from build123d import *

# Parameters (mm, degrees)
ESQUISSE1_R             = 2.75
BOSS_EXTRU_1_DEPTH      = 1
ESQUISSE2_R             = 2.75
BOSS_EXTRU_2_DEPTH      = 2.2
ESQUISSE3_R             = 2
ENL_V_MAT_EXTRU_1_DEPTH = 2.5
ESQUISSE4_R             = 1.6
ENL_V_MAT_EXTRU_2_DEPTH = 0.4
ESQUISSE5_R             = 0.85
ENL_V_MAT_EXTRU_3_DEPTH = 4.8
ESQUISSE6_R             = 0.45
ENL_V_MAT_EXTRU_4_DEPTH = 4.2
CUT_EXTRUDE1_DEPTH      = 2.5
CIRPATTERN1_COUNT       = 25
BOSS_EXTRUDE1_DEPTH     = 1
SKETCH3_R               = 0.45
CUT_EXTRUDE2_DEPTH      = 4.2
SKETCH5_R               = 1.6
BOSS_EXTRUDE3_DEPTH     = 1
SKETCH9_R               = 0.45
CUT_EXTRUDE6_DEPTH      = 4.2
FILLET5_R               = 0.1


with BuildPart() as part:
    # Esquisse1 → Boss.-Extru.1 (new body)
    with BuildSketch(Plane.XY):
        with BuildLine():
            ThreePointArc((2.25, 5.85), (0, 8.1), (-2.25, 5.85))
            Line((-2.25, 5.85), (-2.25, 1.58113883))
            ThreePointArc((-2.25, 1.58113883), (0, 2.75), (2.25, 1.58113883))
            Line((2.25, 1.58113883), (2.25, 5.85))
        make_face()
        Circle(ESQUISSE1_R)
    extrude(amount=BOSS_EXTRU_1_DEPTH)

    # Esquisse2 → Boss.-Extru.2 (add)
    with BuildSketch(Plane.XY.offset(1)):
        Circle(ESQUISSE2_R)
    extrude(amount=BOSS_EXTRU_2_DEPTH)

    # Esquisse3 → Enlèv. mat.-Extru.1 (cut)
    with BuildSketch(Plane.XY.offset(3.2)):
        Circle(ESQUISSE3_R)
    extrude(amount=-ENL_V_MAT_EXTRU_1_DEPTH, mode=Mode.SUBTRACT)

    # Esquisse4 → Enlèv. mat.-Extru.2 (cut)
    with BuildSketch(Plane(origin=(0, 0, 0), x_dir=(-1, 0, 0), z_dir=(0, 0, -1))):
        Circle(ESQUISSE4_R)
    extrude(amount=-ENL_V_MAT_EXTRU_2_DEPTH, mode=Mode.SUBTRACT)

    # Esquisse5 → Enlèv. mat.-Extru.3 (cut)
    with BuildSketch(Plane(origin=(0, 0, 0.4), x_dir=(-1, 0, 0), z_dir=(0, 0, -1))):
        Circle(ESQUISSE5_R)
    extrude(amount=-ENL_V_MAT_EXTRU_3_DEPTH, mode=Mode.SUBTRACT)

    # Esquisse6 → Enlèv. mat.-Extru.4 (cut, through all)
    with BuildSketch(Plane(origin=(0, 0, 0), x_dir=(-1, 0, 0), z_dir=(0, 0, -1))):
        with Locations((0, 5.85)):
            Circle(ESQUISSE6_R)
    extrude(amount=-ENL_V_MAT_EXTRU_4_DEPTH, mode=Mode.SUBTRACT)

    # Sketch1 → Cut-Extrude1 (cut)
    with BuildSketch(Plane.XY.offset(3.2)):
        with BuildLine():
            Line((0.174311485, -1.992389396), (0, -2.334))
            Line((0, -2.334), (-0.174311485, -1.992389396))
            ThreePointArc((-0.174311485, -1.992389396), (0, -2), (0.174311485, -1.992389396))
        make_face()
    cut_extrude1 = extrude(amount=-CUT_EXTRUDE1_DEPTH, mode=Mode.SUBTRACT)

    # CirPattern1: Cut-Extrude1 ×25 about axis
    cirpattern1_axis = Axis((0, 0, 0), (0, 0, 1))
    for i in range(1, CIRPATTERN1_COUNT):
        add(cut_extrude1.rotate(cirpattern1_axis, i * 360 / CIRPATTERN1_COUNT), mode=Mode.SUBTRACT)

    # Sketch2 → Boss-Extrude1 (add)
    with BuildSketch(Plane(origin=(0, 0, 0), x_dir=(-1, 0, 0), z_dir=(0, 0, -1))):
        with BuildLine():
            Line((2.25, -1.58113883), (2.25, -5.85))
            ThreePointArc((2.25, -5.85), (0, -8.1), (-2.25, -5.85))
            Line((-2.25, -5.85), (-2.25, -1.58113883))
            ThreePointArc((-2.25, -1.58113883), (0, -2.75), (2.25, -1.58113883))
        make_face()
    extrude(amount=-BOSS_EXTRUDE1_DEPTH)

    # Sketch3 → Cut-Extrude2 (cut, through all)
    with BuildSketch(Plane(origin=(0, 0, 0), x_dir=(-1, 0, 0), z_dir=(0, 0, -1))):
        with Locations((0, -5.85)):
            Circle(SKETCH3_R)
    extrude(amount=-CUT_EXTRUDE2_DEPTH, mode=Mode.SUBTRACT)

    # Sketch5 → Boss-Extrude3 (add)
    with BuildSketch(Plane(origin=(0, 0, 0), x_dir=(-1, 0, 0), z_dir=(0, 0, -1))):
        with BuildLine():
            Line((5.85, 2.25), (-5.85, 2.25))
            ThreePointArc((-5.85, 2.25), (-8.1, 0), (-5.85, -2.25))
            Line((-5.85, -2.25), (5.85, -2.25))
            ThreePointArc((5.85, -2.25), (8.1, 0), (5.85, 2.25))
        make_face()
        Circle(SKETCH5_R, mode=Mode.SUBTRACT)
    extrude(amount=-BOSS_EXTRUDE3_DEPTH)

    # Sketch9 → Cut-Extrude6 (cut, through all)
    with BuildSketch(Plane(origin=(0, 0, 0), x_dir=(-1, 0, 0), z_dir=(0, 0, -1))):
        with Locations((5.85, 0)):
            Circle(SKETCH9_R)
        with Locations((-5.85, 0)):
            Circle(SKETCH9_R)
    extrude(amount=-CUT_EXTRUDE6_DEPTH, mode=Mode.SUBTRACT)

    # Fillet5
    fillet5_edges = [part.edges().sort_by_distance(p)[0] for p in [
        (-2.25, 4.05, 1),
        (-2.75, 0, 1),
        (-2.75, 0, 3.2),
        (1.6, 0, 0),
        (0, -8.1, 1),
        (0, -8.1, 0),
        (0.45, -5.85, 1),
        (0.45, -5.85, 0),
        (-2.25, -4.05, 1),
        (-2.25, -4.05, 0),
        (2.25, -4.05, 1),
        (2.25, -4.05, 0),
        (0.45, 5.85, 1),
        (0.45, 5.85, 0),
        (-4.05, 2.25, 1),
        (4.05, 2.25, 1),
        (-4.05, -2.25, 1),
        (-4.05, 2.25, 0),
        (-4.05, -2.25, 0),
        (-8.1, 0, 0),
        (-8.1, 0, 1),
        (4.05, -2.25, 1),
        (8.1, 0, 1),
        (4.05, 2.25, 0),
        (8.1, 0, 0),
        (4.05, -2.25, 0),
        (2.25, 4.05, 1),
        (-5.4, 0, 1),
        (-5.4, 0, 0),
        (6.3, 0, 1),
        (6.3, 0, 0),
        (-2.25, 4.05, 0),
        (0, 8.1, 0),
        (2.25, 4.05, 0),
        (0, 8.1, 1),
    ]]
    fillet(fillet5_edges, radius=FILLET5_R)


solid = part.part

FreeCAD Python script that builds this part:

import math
import FreeCAD as App
import Part
import Sketcher


def edges_at(feature, points):
    """Names of the edges that pass closest to the given points."""
    edges = feature.Shape.Edges
    near = lambda p: min(range(len(edges)), key=lambda i: edges[i].distToShape(Part.Vertex(*p))[0])
    return sorted({f"Edge{near(p) + 1}" for p in points})

doc = App.newDocument("Part")
body = doc.addObject("PartDesign::Body", "Body")

# Sketch on XY plane
sketch1 = doc.addObject("Sketcher::SketchObject", "Sketch")
body.addObject(sketch1)
sketch1.AttachmentSupport = (doc.XY_Plane, [""])
sketch1.MapMode = "FlatFace"
sketch1.addGeometry([
    Part.ArcOfCircle(Part.Circle(App.Vector(0, 5.8, 0), App.Vector(0, 0, 1), 2.2), math.radians(0), math.radians(180)),
    Part.LineSegment(App.Vector(-2.2, 5.8, 0), App.Vector(-2.2, 1.6, 0)),
    Part.ArcOfCircle(Part.Circle(App.Vector(0, 0, 0), App.Vector(0, 0, 1), 2.8), math.radians(145), math.radians(395)),
    Part.LineSegment(App.Vector(2.2, 1.6, 0), App.Vector(2.2, 5.8, 0)),
], False)
sketch1.addConstraint([
    Sketcher.Constraint("Tangent", 0, 2, 1, 1),
    Sketcher.Constraint("Coincident", 1, 2, 2, 1),
    Sketcher.Constraint("Coincident", 2, 2, 3, 1),
    Sketcher.Constraint("Tangent", 3, 2, 0, 1),
    Sketcher.Constraint("Vertical", 1),
    Sketcher.Constraint("Vertical", 3),
    Sketcher.Constraint("Coincident", 2, 3, -1, 1),
    Sketcher.Constraint("PointOnObject", 0, 3, -2),
    Sketcher.Constraint("Radius", 0, 2.25),
    Sketcher.Constraint("Radius", 2, 2.75),
    Sketcher.Constraint("DistanceY", -1, 1, 0, 3, 5.85),
])
pad1 = doc.addObject("PartDesign::Pad", "Pad")
body.addObject(pad1)
pad1.Profile = sketch1
pad1.Length = 1

# Sketch on XY plane
sketch2 = doc.addObject("Sketcher::SketchObject", "Sketch001")
body.addObject(sketch2)
sketch2.AttachmentSupport = (doc.XY_Plane, [""])
sketch2.MapMode = "FlatFace"
sketch2.AttachmentOffset = App.Placement(App.Vector(0, 0, 1), App.Rotation())
sketch2.addGeometry(Part.Circle(App.Vector(0, 0, 0), App.Vector(0, 0, 1), 2.8), False)
sketch2.addConstraint([
    Sketcher.Constraint("Coincident", 0, 3, -1, 1),
    Sketcher.Constraint("Diameter", 0, 5.5),
])
pad2 = doc.addObject("PartDesign::Pad", "Pad001")
body.addObject(pad2)
pad2.Profile = sketch2
pad2.Length = 2.2

# Sketch on XY plane
sketch3 = doc.addObject("Sketcher::SketchObject", "Sketch002")
body.addObject(sketch3)
sketch3.AttachmentSupport = (doc.XY_Plane, [""])
sketch3.MapMode = "FlatFace"
sketch3.AttachmentOffset = App.Placement(App.Vector(0, 0, 3.2), App.Rotation())
sketch3.addGeometry(Part.Circle(App.Vector(0, 0, 0), App.Vector(0, 0, 1), 2), False)
sketch3.addConstraint([
    Sketcher.Constraint("Coincident", 0, 3, -1, 1),
    Sketcher.Constraint("Diameter", 0, 4.0),
])
pocket1 = doc.addObject("PartDesign::Pocket", "Pocket")
body.addObject(pocket1)
pocket1.Profile = sketch3
pocket1.Length = 2.5

# Sketch on XY plane
sketch4 = doc.addObject("Sketcher::SketchObject", "Sketch003")
body.addObject(sketch4)
sketch4.AttachmentSupport = (doc.XY_Plane, [""])
sketch4.MapMode = "FlatFace"
sketch4.addGeometry(Part.Circle(App.Vector(0, 0, 0), App.Vector(0, 0, 1), 1.6), False)
sketch4.addConstraint([
    Sketcher.Constraint("Coincident", 0, 3, -1, 1),
    Sketcher.Constraint("Diameter", 0, 3.2),
])
pocket2 = doc.addObject("PartDesign::Pocket", "Pocket001")
body.addObject(pocket2)
pocket2.Profile = sketch4
pocket2.Length = 0.4
pocket2.Reversed = True

# Sketch on XY plane
sketch5 = doc.addObject("Sketcher::SketchObject", "Sketch004")
body.addObject(sketch5)
sketch5.AttachmentSupport = (doc.XY_Plane, [""])
sketch5.MapMode = "FlatFace"
sketch5.AttachmentOffset = App.Placement(App.Vector(0, 0, 0.4), App.Rotation())
sketch5.addGeometry(Part.Circle(App.Vector(0, 0, 0), App.Vector(0, 0, 1), 0.8), False)
sketch5.addConstraint([
    Sketcher.Constraint("Coincident", 0, 3, -1, 1),
    Sketcher.Constraint("Diameter", 0, 1.7),
])
pocket3 = doc.addObject("PartDesign::Pocket", "Pocket002")
body.addObject(pocket3)
pocket3.Profile = sketch5
pocket3.Length = 4.8
pocket3.Reversed = True

# Sketch on XY plane
sketch6 = doc.addObject("Sketcher::SketchObject", "Sketch005")
body.addObject(sketch6)
sketch6.AttachmentSupport = (doc.XY_Plane, [""])
sketch6.MapMode = "FlatFace"
sketch6.addGeometry(Part.Circle(App.Vector(0, 5.85, 0), App.Vector(0, 0, 1), 0.45), False)
sketch6.addConstraint([
    Sketcher.Constraint("PointOnObject", 0, 3, -2),
    Sketcher.Constraint("Diameter", 0, 0.9),
    Sketcher.Constraint("DistanceY", -1, 1, 0, 3, 5.85),
])
pocket4 = doc.addObject("PartDesign::Pocket", "Pocket003")
body.addObject(pocket4)
pocket4.Profile = sketch6
pocket4.Type = "ThroughAll"
pocket4.Reversed = True

# Sketch on XY plane
sketch7 = doc.addObject("Sketcher::SketchObject", "Sketch006")
body.addObject(sketch7)
sketch7.AttachmentSupport = (doc.XY_Plane, [""])
sketch7.MapMode = "FlatFace"
sketch7.AttachmentOffset = App.Placement(App.Vector(0, 0, 3.2), App.Rotation())
sketch7.addGeometry([
    Part.LineSegment(App.Vector(0, -2.33, 0), App.Vector(0.17, -1.99, 0)),
    Part.ArcOfCircle(Part.Circle(App.Vector(0, 0, 0), App.Vector(0, 0, 1), 2), math.radians(-95), math.radians(-85)),
    Part.LineSegment(App.Vector(-0.17, -1.99, 0), App.Vector(0, -2.33, 0)),
], False)
sketch7.addConstraint([
    Sketcher.Constraint("Coincident", 0, 2, 1, 2),
    Sketcher.Constraint("Coincident", 1, 1, 2, 1),
    Sketcher.Constraint("Coincident", 2, 2, 0, 1),
    Sketcher.Constraint("Coincident", 1, 3, -1, 1),
    Sketcher.Constraint("PointOnObject", 2, 2, -2),
    Sketcher.Constraint("Horizontal", 0, 2, 1, 1),
    Sketcher.Constraint("Radius", 1, 2.0),
    Sketcher.Constraint("DistanceY", 2, 2, -1, 1, 2.334),
    Sketcher.Constraint("DistanceX", -1, 1, 0, 2, 0.174311),
])
pocket5 = doc.addObject("PartDesign::Pocket", "Pocket004")
body.addObject(pocket5)
pocket5.Profile = sketch7
pocket5.Length = 2.5
doc.recompute()

polarpattern = doc.addObject("PartDesign::PolarPattern", "PolarPattern")
body.addObject(polarpattern)
polarpattern.Originals = [pocket5]
polarpattern.Axis = (doc.Z_Axis, [""])
polarpattern.Angle = 360
polarpattern.Occurrences = 25
body.Tip = polarpattern

# Sketch on XY plane
sketch8 = doc.addObject("Sketcher::SketchObject", "Sketch007")
body.addObject(sketch8)
sketch8.AttachmentSupport = (doc.XY_Plane, [""])
sketch8.MapMode = "FlatFace"
sketch8.addGeometry([
    Part.LineSegment(App.Vector(-2.2, -5.8, 0), App.Vector(-2.2, -1.6, 0)),
    Part.ArcOfCircle(Part.Circle(App.Vector(0, 0, 0), App.Vector(0, 0, 1), 2.8), math.radians(-145), math.radians(-35)),
    Part.LineSegment(App.Vector(2.2, -1.6, 0), App.Vector(2.2, -5.8, 0)),
    Part.ArcOfCircle(Part.Circle(App.Vector(0, -5.8, 0), App.Vector(0, 0, 1), 2.2), math.radians(180), math.radians(360)),
], False)
sketch8.addConstraint([
    Sketcher.Constraint("Coincident", 0, 2, 1, 1),
    Sketcher.Constraint("Coincident", 1, 2, 2, 1),
    Sketcher.Constraint("Tangent", 2, 2, 3, 2),
    Sketcher.Constraint("Tangent", 3, 1, 0, 1),
    Sketcher.Constraint("Vertical", 0),
    Sketcher.Constraint("Vertical", 2),
    Sketcher.Constraint("Coincident", 1, 3, -1, 1),
    Sketcher.Constraint("PointOnObject", 3, 3, -2),
    Sketcher.Constraint("Radius", 1, 2.75),
    Sketcher.Constraint("Radius", 3, 2.25),
    Sketcher.Constraint("DistanceY", 3, 3, -1, 1, 5.85),
])
pad3 = doc.addObject("PartDesign::Pad", "Pad002")
body.addObject(pad3)
pad3.Profile = sketch8
pad3.Length = 1

# Sketch on XY plane
sketch9 = doc.addObject("Sketcher::SketchObject", "Sketch008")
body.addObject(sketch9)
sketch9.AttachmentSupport = (doc.XY_Plane, [""])
sketch9.MapMode = "FlatFace"
sketch9.addGeometry(Part.Circle(App.Vector(0, -5.85, 0), App.Vector(0, 0, 1), 0.45), False)
sketch9.addConstraint([
    Sketcher.Constraint("PointOnObject", 0, 3, -2),
    Sketcher.Constraint("Diameter", 0, 0.9),
    Sketcher.Constraint("DistanceY", 0, 3, -1, 1, 5.85),
])
pocket6 = doc.addObject("PartDesign::Pocket", "Pocket005")
body.addObject(pocket6)
pocket6.Profile = sketch9
pocket6.Type = "ThroughAll"
pocket6.Reversed = True

# Sketch on XY plane
sketch10 = doc.addObject("Sketcher::SketchObject", "Sketch009")
body.addObject(sketch10)
sketch10.AttachmentSupport = (doc.XY_Plane, [""])
sketch10.MapMode = "FlatFace"
sketch10.addGeometry([
    Part.LineSegment(App.Vector(-5.8, 2.2, 0), App.Vector(5.8, 2.2, 0)),  # 0
    Part.ArcOfCircle(Part.Circle(App.Vector(5.8, 0, 0), App.Vector(0, 0, 1), 2.2), math.radians(-90), math.radians(90)),  # 1
    Part.LineSegment(App.Vector(5.8, -2.2, 0), App.Vector(-5.8, -2.2, 0)),  # 2
    Part.ArcOfCircle(Part.Circle(App.Vector(-5.8, 0, 0), App.Vector(0, 0, 1), 2.2), math.radians(90), math.radians(270)),  # 3
    Part.Circle(App.Vector(0, 0, 0), App.Vector(0, 0, 1), 1.6),  # 4
], False)
sketch10.addConstraint([
    Sketcher.Constraint("Tangent", 0, 2, 1, 2),
    Sketcher.Constraint("Tangent", 1, 1, 2, 1),
    Sketcher.Constraint("Tangent", 2, 2, 3, 2),
    Sketcher.Constraint("Tangent", 3, 1, 0, 1),
    Sketcher.Constraint("Horizontal", 0),
    Sketcher.Constraint("Horizontal", 2),
    Sketcher.Constraint("Coincident", 4, 3, -1, 1),
    Sketcher.Constraint("Symmetric", 1, 3, 3, 3, -1, 1),
    Sketcher.Constraint("Diameter", 4, 3.2),
    Sketcher.Constraint("Radius", 1, 2.25),
    Sketcher.Constraint("DistanceX", 0, 1, 0, 2, 11.7),
])
pad4 = doc.addObject("PartDesign::Pad", "Pad003")
body.addObject(pad4)
pad4.Profile = sketch10
pad4.Length = 1

# Sketch on XY plane
sketch11 = doc.addObject("Sketcher::SketchObject", "Sketch010")
body.addObject(sketch11)
sketch11.AttachmentSupport = (doc.XY_Plane, [""])
sketch11.MapMode = "FlatFace"
sketch11.addGeometry([
    Part.Circle(App.Vector(-5.85, 0, 0), App.Vector(0, 0, 1), 0.45),
    Part.Circle(App.Vector(5.85, 0, 0), App.Vector(0, 0, 1), 0.45),
], False)
sketch11.addConstraint([
    Sketcher.Constraint("Equal", 0, 1),
    Sketcher.Constraint("Symmetric", 0, 3, 1, 3, -1, 1),
    Sketcher.Constraint("PointOnObject", 0, 3, -1),
    Sketcher.Constraint("Diameter", 0, 0.9),
    Sketcher.Constraint("DistanceX", 0, 3, 1, 3, 11.7),
])
pocket7 = doc.addObject("PartDesign::Pocket", "Pocket006")
body.addObject(pocket7)
pocket7.Profile = sketch11
pocket7.Type = "ThroughAll"
pocket7.Reversed = True
doc.recompute()

fillet = doc.addObject("PartDesign::Fillet", "Fillet")
body.addObject(fillet)
fillet.Base = (pocket7, edges_at(pocket7, [
    (-2.25, 4.05, 1),
    (-0.829, 2.622, 1),
    (-2.75, 0, 3.2),
    (1.6, 0, 0),
    (0, -8.1, 1),
    (0, -8.1, 0),
    (0.45, -5.85, 1),
    (0.45, -5.85, 0),
    (-2.25, -4.05, 1),
    (-2.25, -4.05, 0),
    (2.25, -4.05, 1),
    (2.25, -4.05, 0),
    (0.45, 5.85, 1),
    (0.45, 5.85, 0),
    (-4.05, 2.25, 1),
    (4.05, 2.25, 1),
    (-4.05, -2.25, 1),
    (-4.05, 2.25, 0),
    (-4.05, -2.25, 0),
    (-8.1, 0, 0),
    (-8.1, 0, 1),
    (4.05, -2.25, 1),
    (8.1, 0, 1),
    (4.05, 2.25, 0),
    (8.1, 0, 0),
    (4.05, -2.25, 0),
    (2.25, 4.05, 1),
    (-5.4, 0, 1),
    (-5.4, 0, 0),
    (6.3, 0, 1),
    (6.3, 0, 0),
    (-2.25, 4.05, 0),
    (0, 8.1, 0),
    (2.25, 4.05, 0),
    (0, 8.1, 1),
]))
fillet.Radius = 0.1

doc.recompute()
